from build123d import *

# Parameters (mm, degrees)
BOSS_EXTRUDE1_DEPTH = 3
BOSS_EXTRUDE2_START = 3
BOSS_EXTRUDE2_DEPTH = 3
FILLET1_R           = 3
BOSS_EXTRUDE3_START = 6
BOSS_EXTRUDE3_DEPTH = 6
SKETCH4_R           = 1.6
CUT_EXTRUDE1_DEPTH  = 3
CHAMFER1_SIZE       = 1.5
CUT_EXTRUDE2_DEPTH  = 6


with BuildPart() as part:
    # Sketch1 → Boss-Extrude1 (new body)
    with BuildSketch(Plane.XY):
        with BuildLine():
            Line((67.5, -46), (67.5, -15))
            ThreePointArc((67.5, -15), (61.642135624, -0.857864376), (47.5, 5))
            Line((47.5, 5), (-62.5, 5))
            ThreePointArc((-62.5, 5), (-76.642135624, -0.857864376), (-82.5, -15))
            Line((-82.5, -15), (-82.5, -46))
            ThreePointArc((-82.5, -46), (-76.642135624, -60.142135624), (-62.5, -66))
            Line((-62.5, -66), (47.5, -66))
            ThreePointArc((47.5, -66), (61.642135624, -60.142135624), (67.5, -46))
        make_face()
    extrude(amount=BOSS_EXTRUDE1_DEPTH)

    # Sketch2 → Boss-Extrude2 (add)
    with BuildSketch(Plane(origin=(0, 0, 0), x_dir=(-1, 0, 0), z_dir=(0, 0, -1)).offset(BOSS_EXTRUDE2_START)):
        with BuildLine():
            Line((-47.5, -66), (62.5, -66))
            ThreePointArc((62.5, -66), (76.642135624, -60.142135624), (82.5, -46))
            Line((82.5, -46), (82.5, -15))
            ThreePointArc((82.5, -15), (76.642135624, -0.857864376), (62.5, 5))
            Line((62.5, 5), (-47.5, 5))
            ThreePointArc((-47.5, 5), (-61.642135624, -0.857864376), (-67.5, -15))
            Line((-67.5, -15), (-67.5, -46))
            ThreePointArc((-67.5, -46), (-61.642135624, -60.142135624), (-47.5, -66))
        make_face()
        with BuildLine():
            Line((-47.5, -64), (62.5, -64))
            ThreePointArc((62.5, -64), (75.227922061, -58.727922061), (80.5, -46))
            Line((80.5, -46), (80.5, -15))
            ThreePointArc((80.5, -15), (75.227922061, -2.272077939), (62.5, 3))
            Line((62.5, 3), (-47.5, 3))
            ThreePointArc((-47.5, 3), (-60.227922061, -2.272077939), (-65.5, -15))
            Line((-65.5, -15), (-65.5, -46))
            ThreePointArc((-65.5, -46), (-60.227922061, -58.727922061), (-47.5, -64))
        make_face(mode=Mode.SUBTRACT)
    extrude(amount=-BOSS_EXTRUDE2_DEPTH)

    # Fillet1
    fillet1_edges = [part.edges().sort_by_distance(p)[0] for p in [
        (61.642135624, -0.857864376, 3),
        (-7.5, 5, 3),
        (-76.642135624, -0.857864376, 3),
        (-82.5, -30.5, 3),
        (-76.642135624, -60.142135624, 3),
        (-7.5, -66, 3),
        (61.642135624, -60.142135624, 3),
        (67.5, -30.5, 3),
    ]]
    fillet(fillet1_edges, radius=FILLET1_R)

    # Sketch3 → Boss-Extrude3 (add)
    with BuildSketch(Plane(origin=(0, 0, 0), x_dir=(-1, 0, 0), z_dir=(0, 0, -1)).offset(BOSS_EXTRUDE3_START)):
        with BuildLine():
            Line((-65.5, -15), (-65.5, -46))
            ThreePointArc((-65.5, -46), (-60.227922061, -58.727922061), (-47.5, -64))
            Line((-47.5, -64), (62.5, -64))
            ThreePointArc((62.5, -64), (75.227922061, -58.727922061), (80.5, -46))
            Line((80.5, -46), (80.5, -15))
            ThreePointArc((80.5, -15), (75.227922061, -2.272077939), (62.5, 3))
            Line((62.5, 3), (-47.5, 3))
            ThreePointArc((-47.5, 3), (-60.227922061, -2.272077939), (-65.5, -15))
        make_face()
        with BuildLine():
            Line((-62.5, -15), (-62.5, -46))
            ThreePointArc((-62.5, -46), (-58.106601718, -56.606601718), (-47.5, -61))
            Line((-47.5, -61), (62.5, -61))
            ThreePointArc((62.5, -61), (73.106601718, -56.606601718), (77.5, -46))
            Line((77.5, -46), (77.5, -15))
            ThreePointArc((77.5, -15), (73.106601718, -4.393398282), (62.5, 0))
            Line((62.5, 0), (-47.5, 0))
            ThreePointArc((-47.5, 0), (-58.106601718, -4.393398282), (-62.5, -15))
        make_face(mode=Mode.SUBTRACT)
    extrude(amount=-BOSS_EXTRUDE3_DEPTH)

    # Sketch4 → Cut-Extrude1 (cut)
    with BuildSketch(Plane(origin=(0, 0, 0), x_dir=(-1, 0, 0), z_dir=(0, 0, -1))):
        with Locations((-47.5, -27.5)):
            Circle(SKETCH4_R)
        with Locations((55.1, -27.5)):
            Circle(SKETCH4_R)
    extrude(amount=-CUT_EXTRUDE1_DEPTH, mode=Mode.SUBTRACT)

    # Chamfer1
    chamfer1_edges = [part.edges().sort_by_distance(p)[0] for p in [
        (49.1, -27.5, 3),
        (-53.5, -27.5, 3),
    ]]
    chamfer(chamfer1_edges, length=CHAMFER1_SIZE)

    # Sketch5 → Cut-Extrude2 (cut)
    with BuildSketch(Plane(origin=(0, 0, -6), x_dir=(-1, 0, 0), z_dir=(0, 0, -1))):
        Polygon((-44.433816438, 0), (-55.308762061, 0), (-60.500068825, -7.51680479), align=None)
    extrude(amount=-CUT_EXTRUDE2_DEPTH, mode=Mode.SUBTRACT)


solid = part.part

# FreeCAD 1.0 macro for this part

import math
import FreeCAD as App
import Part
import Sketcher

V = App.Vector
Q = App.Units.Quantity


def edges_at(feature, points):
    """Names of the edges that pass closest to the given points."""
    edges = feature.Shape.Edges
    near = lambda p: min(range(len(edges)), key=lambda i: edges[i].distToShape(Part.Vertex(*p))[0])
    return sorted({f"Edge{near(p) + 1}" for p in points})


def add_polygon(sketch, points):
    """Adds a closed chain of lines whose ends are joined by coincident constraints."""
    first, n = sketch.GeometryCount, len(points)
    for a, b in zip(points, points[1:] + points[:1]):
        sketch.addGeometry(Part.LineSegment(App.Vector(*a, 0), App.Vector(*b, 0)), False)
    for i in range(n):
        sketch.addConstraint(Sketcher.Constraint("Coincident", first + i, 2, first + (i + 1) % n, 1))

doc = App.newDocument("Part")
body = doc.addObject("PartDesign::Body", "Body")

sketch1 = doc.addObject("Sketcher::SketchObject", "Sketch")
body.addObject(sketch1)
sketch1.AttachmentSupport = (doc.XY_Plane, [""])
sketch1.MapMode = "FlatFace"
sketch1.addGeometry([
    Part.LineSegment(V(67.5, -46, 0), V(67.5, -15, 0)),
    Part.ArcOfCircle(Part.Circle(V(47.5, -15, 0), V(0, 0, 1), 20), math.radians(0), math.radians(90)),
    Part.LineSegment(V(47.5, 5, 0), V(-62.5, 5, 0)),
    Part.ArcOfCircle(Part.Circle(V(-62.5, -15, 0), V(0, 0, 1), 20), math.radians(90), math.radians(180)),
    Part.LineSegment(V(-82.5, -15, 0), V(-82.5, -46, 0)),
    Part.ArcOfCircle(Part.Circle(V(-62.5, -46, 0), V(0, 0, 1), 20), math.radians(180), math.radians(270)),
    Part.LineSegment(V(-62.5, -66, 0), V(47.5, -66, 0)),
    Part.ArcOfCircle(Part.Circle(V(47.5, -46, 0), V(0, 0, 1), 20), math.radians(-90), math.radians(0)),
], False)
sketch1.addConstraint([
    Sketcher.Constraint("Tangent", 0, 2, 1, 1),
    Sketcher.Constraint("Tangent", 1, 2, 2, 1),
    Sketcher.Constraint("Tangent", 2, 2, 3, 1),
    Sketcher.Constraint("Tangent", 3, 2, 4, 1),
    Sketcher.Constraint("Tangent", 4, 2, 5, 1),
    Sketcher.Constraint("Tangent", 5, 2, 6, 1),
    Sketcher.Constraint("Tangent", 6, 2, 7, 1),
    Sketcher.Constraint("Tangent", 7, 2, 0, 1),
    Sketcher.Constraint("Vertical", 0),
    Sketcher.Constraint("Horizontal", 2),
    Sketcher.Constraint("Vertical", 4),
    Sketcher.Constraint("Horizontal", 6),
    Sketcher.Constraint("Equal", 1, 3),
    Sketcher.Constraint("Equal", 3, 5),
    Sketcher.Constraint("Equal", 5, 7),
    Sketcher.Constraint("Radius", 1, 20.0),
    Sketcher.Constraint("DistanceX", 2, 2, 2, 1, 110.0),
    Sketcher.Constraint("DistanceY", 0, 1, 0, 2, 31.0),
    Sketcher.Constraint("DistanceY", 1, 3, -1, 1, 15.0),
    Sketcher.Constraint("DistanceX", -1, 1, 1, 3, 47.5),
])
pad1 = doc.addObject("PartDesign::Pad", "Pad")
body.addObject(pad1)
pad1.Profile = sketch1
pad1.Length = 3

sketch2 = doc.addObject("Sketcher::SketchObject", "Sketch001")
body.addObject(sketch2)
sketch2.AttachmentSupport = (doc.XY_Plane, [""])
sketch2.MapMode = "FlatFace"
sketch2.AttachmentOffset = App.Placement(V(0, 0, -3), App.Rotation())
sketch2.addGeometry([
    Part.LineSegment(V(47.5, -66, 0), V(-62.5, -66, 0)),
    Part.ArcOfCircle(Part.Circle(V(-62.5, -46, 0), V(0, 0, 1), 20), math.radians(180), math.radians(270)),
    Part.LineSegment(V(-82.5, -46, 0), V(-82.5, -15, 0)),
    Part.ArcOfCircle(Part.Circle(V(-62.5, -15, 0), V(0, 0, 1), 20), math.radians(90), math.radians(180)),
    Part.LineSegment(V(-62.5, 5, 0), V(47.5, 5, 0)),
    Part.ArcOfCircle(Part.Circle(V(47.5, -15, 0), V(0, 0, 1), 20), math.radians(0), math.radians(90)),
    Part.LineSegment(V(67.5, -15, 0), V(67.5, -46, 0)),
    Part.ArcOfCircle(Part.Circle(V(47.5, -46, 0), V(0, 0, 1), 20), math.radians(-90), math.radians(0)),
    Part.LineSegment(V(-62.5, -64, 0), V(47.5, -64, 0)),
    Part.ArcOfCircle(Part.Circle(V(47.5, -46, 0), V(0, 0, 1), 18), math.radians(-90), math.radians(0)),
    Part.LineSegment(V(65.5, -46, 0), V(65.5, -15, 0)),
    Part.ArcOfCircle(Part.Circle(V(47.5, -15, 0), V(0, 0, 1), 18), math.radians(0), math.radians(90)),
    Part.LineSegment(V(47.5, 3, 0), V(-62.5, 3, 0)),
    Part.ArcOfCircle(Part.Circle(V(-62.5, -15, 0), V(0, 0, 1), 18), math.radians(90), math.radians(180)),
    Part.LineSegment(V(-80.5, -15, 0), V(-80.5, -46, 0)),
    Part.ArcOfCircle(Part.Circle(V(-62.5, -46, 0), V(0, 0, 1), 18), math.radians(-180), math.radians(-90)),
], False)
sketch2.addConstraint([
    Sketcher.Constraint("Tangent", 0, 2, 1, 2),
    Sketcher.Constraint("Tangent", 1, 1, 2, 1),
    Sketcher.Constraint("Tangent", 2, 2, 3, 2),
    Sketcher.Constraint("Tangent", 3, 1, 4, 1),
    Sketcher.Constraint("Tangent", 4, 2, 5, 2),
    Sketcher.Constraint("Tangent", 5, 1, 6, 1),
    Sketcher.Constraint("Tangent", 6, 2, 7, 2),
    Sketcher.Constraint("Tangent", 7, 1, 0, 1),
    Sketcher.Constraint("Tangent", 8, 2, 9, 1),
    Sketcher.Constraint("Tangent", 9, 2, 10, 1),
    Sketcher.Constraint("Tangent", 10, 2, 11, 1),
    Sketcher.Constraint("Tangent", 11, 2, 12, 1),
    Sketcher.Constraint("Tangent", 12, 2, 13, 1),
    Sketcher.Constraint("Tangent", 13, 2, 14, 1),
    Sketcher.Constraint("Tangent", 14, 2, 15, 1),
    Sketcher.Constraint("Tangent", 15, 2, 8, 1),
    Sketcher.Constraint("Horizontal", 0),
    Sketcher.Constraint("Vertical", 2),
    Sketcher.Constraint("Horizontal", 4),
    Sketcher.Constraint("Vertical", 6),
    Sketcher.Constraint("Horizontal", 8),
    Sketcher.Constraint("Vertical", 10),
    Sketcher.Constraint("Horizontal", 12),
    Sketcher.Constraint("Vertical", 14),
    Sketcher.Constraint("Coincident", 9, 3, 7, 3),
    Sketcher.Constraint("Coincident", 11, 3, 5, 3),
    Sketcher.Constraint("Coincident", 13, 3, 3, 3),
    Sketcher.Constraint("Equal", 1, 3),
    Sketcher.Constraint("Equal", 3, 5),
    Sketcher.Constraint("Equal", 5, 7),
    Sketcher.Constraint("Equal", 13, 15),
    Sketcher.Constraint("Radius", 1, 20.0),
    Sketcher.Constraint("Radius", 9, 18.0),
    Sketcher.Constraint("DistanceX", 0, 2, 0, 1, 110.0),
    Sketcher.Constraint("DistanceY", 2, 1, 2, 2, 31.0),
    Sketcher.Constraint("DistanceY", 1, 3, -1, 1, 46.0),
    Sketcher.Constraint("DistanceX", 1, 3, -1, 1, 62.5),
])
pad2 = doc.addObject("PartDesign::Pad", "Pad001")
body.addObject(pad2)
pad2.Profile = sketch2
pad2.Length = 3
doc.recompute()

fillet = doc.addObject("PartDesign::Fillet", "Fillet")
body.addObject(fillet)
fillet.Base = (pad2, edges_at(pad2, [
    (61.642, -0.858, 3),
    (-7.5, 5, 3),
    (-76.642, -0.858, 3),
    (-82.5, -30.5, 3),
    (-76.642, -60.142, 3),
    (-7.5, -66, 3),
    (61.642, -60.142, 3),
    (67.5, -30.5, 3),
]))
fillet.Radius = 3

sketch3 = doc.addObject("Sketcher::SketchObject", "Sketch002")
body.addObject(sketch3)
sketch3.AttachmentSupport = (doc.XY_Plane, [""])
sketch3.MapMode = "FlatFace"
sketch3.AttachmentOffset = App.Placement(V(0, 0, -6), App.Rotation())
sketch3.addGeometry([
    Part.LineSegment(V(65.5, -15, 0), V(65.5, -46, 0)),
    Part.ArcOfCircle(Part.Circle(V(47.5, -46, 0), V(0, 0, 1), 18), math.radians(-90), math.radians(0)),
    Part.LineSegment(V(47.5, -64, 0), V(-62.5, -64, 0)),
    Part.ArcOfCircle(Part.Circle(V(-62.5, -46, 0), V(0, 0, 1), 18), math.radians(-180), math.radians(-90)),
    Part.LineSegment(V(-80.5, -46, 0), V(-80.5, -15, 0)),
    Part.ArcOfCircle(Part.Circle(V(-62.5, -15, 0), V(0, 0, 1), 18), math.radians(90), math.radians(180)),
    Part.LineSegment(V(-62.5, 3, 0), V(47.5, 3, 0)),
    Part.ArcOfCircle(Part.Circle(V(47.5, -15, 0), V(0, 0, 1), 18), math.radians(0), math.radians(90)),
    Part.LineSegment(V(62.5, -46, 0), V(62.5, -15, 0)),
    Part.ArcOfCircle(Part.Circle(V(47.5, -15, 0), V(0, 0, 1), 15), math.radians(0), math.radians(90)),
    Part.LineSegment(V(47.5, 0, 0), V(-62.5, 0, 0)),
    Part.ArcOfCircle(Part.Circle(V(-62.5, -15, 0), V(0, 0, 1), 15), math.radians(90), math.radians(180)),
    Part.LineSegment(V(-77.5, -15, 0), V(-77.5, -46, 0)),
    Part.ArcOfCircle(Part.Circle(V(-62.5, -46, 0), V(0, 0, 1), 15), math.radians(180), math.radians(270)),
    Part.LineSegment(V(-62.5, -61, 0), V(47.5, -61, 0)),
    Part.ArcOfCircle(Part.Circle(V(47.5, -46, 0), V(0, 0, 1), 15), math.radians(-90), math.radians(0)),
], False)
sketch3.addConstraint([
    Sketcher.Constraint("Tangent", 0, 2, 1, 2),
    Sketcher.Constraint("Tangent", 1, 1, 2, 1),
    Sketcher.Constraint("Tangent", 2, 2, 3, 2),
    Sketcher.Constraint("Tangent", 3, 1, 4, 1),
    Sketcher.Constraint("Tangent", 4, 2, 5, 2),
    Sketcher.Constraint("Tangent", 5, 1, 6, 1),
    Sketcher.Constraint("Tangent", 6, 2, 7, 2),
    Sketcher.Constraint("Tangent", 7, 1, 0, 1),
    Sketcher.Constraint("Tangent", 8, 2, 9, 1),
    Sketcher.Constraint("Tangent", 9, 2, 10, 1),
    Sketcher.Constraint("Tangent", 10, 2, 11, 1),
    Sketcher.Constraint("Tangent", 11, 2, 12, 1),
    Sketcher.Constraint("Tangent", 12, 2, 13, 1),
    Sketcher.Constraint("Tangent", 13, 2, 14, 1),
    Sketcher.Constraint("Tangent", 14, 2, 15, 1),
    Sketcher.Constraint("Tangent", 15, 2, 8, 1),
    Sketcher.Constraint("Vertical", 0),
    Sketcher.Constraint("Horizontal", 2),
    Sketcher.Constraint("Vertical", 4),
    Sketcher.Constraint("Horizontal", 6),
    Sketcher.Constraint("Vertical", 8),
    Sketcher.Constraint("Horizontal", 10),
    Sketcher.Constraint("Vertical", 12),
    Sketcher.Constraint("Horizontal", 14),
    Sketcher.Constraint("Coincident", 9, 3, 7, 3),
    Sketcher.Constraint("Coincident", 11, 3, 5, 3),
    Sketcher.Constraint("Coincident", 13, 3, 3, 3),
    Sketcher.Constraint("Equal", 1, 3),
    Sketcher.Constraint("Equal", 3, 5),
    Sketcher.Constraint("Equal", 5, 7),
    Sketcher.Constraint("Equal", 13, 15),
    Sketcher.Constraint("PointOnObject", 9, 2, -1),
    Sketcher.Constraint("Radius", 1, 18.0),
    Sketcher.Constraint("Radius", 9, 15.0),
    Sketcher.Constraint("DistanceX", 2, 2, 2, 1, 110.0),
    Sketcher.Constraint("DistanceY", 0, 2, 0, 1, 31.0),
    Sketcher.Constraint("DistanceX", -1, 1, 1, 3, 47.5),
])
pad3 = doc.addObject("PartDesign::Pad", "Pad002")
body.addObject(pad3)
pad3.Profile = sketch3
pad3.Length = 6

sketch4 = doc.addObject("Sketcher::SketchObject", "Sketch003")
body.addObject(sketch4)
sketch4.AttachmentSupport = (doc.XY_Plane, [""])
sketch4.MapMode = "FlatFace"
sketch4.addGeometry([
    Part.Circle(V(47.5, -27.5, 0), V(0, 0, 1), 1.6),
    Part.Circle(V(-55.1, -27.5, 0), V(0, 0, 1), 1.6),
], False)
sketch4.addConstraint([
    Sketcher.Constraint("Equal", 0, 1),
    Sketcher.Constraint("Horizontal", 0, 3, 1, 3),
    Sketcher.Constraint("Diameter", 0, 3.2),
    Sketcher.Constraint("DistanceX", -1, 1, 0, 3, 47.5),
    Sketcher.Constraint("DistanceY", 0, 3, -1, 1, 27.5),
    Sketcher.Constraint("DistanceX", 1, 3, -1, 1, 55.1),
])
pocket1 = doc.addObject("PartDesign::Pocket", "Pocket")
body.addObject(pocket1)
pocket1.Profile = sketch4
pocket1.Length = 3
pocket1.Reversed = True
doc.recompute()

chamfer = doc.addObject("PartDesign::Chamfer", "Chamfer")
body.addObject(chamfer)
chamfer.Base = (pocket1, edges_at(pocket1, [(49.1, -27.5, 3), (-53.5, -27.5, 3)]))
chamfer.Size = 1.5

sketch5 = doc.addObject("Sketcher::SketchObject", "Sketch004")
body.addObject(sketch5)
sketch5.AttachmentSupport = (doc.XY_Plane, [""])
sketch5.MapMode = "FlatFace"
sketch5.AttachmentOffset = App.Placement(V(0, 0, -6), App.Rotation())
add_polygon(sketch5, [(44.433816, 0), (55.308762, 0), (60.500069, -7.516805)])
sketch5.addConstraint([
    Sketcher.Constraint("Horizontal", 0),
    Sketcher.Constraint("PointOnObject", 0, 2, -1),
    Sketcher.Constraint("Angle", 1, Q("-55.370002 deg")),
    Sketcher.Constraint("DistanceX", 0, 1, 0, 2, 10.874946),
    Sketcher.Constraint("DistanceX", -1, 1, 1, 2, 60.500069),
    Sketcher.Constraint("Distance", 1, 9.135208),
])
pocket2 = doc.addObject("PartDesign::Pocket", "Pocket001")
body.addObject(pocket2)
pocket2.Profile = sketch5
pocket2.Length = 6
pocket2.Reversed = True

doc.recompute()
